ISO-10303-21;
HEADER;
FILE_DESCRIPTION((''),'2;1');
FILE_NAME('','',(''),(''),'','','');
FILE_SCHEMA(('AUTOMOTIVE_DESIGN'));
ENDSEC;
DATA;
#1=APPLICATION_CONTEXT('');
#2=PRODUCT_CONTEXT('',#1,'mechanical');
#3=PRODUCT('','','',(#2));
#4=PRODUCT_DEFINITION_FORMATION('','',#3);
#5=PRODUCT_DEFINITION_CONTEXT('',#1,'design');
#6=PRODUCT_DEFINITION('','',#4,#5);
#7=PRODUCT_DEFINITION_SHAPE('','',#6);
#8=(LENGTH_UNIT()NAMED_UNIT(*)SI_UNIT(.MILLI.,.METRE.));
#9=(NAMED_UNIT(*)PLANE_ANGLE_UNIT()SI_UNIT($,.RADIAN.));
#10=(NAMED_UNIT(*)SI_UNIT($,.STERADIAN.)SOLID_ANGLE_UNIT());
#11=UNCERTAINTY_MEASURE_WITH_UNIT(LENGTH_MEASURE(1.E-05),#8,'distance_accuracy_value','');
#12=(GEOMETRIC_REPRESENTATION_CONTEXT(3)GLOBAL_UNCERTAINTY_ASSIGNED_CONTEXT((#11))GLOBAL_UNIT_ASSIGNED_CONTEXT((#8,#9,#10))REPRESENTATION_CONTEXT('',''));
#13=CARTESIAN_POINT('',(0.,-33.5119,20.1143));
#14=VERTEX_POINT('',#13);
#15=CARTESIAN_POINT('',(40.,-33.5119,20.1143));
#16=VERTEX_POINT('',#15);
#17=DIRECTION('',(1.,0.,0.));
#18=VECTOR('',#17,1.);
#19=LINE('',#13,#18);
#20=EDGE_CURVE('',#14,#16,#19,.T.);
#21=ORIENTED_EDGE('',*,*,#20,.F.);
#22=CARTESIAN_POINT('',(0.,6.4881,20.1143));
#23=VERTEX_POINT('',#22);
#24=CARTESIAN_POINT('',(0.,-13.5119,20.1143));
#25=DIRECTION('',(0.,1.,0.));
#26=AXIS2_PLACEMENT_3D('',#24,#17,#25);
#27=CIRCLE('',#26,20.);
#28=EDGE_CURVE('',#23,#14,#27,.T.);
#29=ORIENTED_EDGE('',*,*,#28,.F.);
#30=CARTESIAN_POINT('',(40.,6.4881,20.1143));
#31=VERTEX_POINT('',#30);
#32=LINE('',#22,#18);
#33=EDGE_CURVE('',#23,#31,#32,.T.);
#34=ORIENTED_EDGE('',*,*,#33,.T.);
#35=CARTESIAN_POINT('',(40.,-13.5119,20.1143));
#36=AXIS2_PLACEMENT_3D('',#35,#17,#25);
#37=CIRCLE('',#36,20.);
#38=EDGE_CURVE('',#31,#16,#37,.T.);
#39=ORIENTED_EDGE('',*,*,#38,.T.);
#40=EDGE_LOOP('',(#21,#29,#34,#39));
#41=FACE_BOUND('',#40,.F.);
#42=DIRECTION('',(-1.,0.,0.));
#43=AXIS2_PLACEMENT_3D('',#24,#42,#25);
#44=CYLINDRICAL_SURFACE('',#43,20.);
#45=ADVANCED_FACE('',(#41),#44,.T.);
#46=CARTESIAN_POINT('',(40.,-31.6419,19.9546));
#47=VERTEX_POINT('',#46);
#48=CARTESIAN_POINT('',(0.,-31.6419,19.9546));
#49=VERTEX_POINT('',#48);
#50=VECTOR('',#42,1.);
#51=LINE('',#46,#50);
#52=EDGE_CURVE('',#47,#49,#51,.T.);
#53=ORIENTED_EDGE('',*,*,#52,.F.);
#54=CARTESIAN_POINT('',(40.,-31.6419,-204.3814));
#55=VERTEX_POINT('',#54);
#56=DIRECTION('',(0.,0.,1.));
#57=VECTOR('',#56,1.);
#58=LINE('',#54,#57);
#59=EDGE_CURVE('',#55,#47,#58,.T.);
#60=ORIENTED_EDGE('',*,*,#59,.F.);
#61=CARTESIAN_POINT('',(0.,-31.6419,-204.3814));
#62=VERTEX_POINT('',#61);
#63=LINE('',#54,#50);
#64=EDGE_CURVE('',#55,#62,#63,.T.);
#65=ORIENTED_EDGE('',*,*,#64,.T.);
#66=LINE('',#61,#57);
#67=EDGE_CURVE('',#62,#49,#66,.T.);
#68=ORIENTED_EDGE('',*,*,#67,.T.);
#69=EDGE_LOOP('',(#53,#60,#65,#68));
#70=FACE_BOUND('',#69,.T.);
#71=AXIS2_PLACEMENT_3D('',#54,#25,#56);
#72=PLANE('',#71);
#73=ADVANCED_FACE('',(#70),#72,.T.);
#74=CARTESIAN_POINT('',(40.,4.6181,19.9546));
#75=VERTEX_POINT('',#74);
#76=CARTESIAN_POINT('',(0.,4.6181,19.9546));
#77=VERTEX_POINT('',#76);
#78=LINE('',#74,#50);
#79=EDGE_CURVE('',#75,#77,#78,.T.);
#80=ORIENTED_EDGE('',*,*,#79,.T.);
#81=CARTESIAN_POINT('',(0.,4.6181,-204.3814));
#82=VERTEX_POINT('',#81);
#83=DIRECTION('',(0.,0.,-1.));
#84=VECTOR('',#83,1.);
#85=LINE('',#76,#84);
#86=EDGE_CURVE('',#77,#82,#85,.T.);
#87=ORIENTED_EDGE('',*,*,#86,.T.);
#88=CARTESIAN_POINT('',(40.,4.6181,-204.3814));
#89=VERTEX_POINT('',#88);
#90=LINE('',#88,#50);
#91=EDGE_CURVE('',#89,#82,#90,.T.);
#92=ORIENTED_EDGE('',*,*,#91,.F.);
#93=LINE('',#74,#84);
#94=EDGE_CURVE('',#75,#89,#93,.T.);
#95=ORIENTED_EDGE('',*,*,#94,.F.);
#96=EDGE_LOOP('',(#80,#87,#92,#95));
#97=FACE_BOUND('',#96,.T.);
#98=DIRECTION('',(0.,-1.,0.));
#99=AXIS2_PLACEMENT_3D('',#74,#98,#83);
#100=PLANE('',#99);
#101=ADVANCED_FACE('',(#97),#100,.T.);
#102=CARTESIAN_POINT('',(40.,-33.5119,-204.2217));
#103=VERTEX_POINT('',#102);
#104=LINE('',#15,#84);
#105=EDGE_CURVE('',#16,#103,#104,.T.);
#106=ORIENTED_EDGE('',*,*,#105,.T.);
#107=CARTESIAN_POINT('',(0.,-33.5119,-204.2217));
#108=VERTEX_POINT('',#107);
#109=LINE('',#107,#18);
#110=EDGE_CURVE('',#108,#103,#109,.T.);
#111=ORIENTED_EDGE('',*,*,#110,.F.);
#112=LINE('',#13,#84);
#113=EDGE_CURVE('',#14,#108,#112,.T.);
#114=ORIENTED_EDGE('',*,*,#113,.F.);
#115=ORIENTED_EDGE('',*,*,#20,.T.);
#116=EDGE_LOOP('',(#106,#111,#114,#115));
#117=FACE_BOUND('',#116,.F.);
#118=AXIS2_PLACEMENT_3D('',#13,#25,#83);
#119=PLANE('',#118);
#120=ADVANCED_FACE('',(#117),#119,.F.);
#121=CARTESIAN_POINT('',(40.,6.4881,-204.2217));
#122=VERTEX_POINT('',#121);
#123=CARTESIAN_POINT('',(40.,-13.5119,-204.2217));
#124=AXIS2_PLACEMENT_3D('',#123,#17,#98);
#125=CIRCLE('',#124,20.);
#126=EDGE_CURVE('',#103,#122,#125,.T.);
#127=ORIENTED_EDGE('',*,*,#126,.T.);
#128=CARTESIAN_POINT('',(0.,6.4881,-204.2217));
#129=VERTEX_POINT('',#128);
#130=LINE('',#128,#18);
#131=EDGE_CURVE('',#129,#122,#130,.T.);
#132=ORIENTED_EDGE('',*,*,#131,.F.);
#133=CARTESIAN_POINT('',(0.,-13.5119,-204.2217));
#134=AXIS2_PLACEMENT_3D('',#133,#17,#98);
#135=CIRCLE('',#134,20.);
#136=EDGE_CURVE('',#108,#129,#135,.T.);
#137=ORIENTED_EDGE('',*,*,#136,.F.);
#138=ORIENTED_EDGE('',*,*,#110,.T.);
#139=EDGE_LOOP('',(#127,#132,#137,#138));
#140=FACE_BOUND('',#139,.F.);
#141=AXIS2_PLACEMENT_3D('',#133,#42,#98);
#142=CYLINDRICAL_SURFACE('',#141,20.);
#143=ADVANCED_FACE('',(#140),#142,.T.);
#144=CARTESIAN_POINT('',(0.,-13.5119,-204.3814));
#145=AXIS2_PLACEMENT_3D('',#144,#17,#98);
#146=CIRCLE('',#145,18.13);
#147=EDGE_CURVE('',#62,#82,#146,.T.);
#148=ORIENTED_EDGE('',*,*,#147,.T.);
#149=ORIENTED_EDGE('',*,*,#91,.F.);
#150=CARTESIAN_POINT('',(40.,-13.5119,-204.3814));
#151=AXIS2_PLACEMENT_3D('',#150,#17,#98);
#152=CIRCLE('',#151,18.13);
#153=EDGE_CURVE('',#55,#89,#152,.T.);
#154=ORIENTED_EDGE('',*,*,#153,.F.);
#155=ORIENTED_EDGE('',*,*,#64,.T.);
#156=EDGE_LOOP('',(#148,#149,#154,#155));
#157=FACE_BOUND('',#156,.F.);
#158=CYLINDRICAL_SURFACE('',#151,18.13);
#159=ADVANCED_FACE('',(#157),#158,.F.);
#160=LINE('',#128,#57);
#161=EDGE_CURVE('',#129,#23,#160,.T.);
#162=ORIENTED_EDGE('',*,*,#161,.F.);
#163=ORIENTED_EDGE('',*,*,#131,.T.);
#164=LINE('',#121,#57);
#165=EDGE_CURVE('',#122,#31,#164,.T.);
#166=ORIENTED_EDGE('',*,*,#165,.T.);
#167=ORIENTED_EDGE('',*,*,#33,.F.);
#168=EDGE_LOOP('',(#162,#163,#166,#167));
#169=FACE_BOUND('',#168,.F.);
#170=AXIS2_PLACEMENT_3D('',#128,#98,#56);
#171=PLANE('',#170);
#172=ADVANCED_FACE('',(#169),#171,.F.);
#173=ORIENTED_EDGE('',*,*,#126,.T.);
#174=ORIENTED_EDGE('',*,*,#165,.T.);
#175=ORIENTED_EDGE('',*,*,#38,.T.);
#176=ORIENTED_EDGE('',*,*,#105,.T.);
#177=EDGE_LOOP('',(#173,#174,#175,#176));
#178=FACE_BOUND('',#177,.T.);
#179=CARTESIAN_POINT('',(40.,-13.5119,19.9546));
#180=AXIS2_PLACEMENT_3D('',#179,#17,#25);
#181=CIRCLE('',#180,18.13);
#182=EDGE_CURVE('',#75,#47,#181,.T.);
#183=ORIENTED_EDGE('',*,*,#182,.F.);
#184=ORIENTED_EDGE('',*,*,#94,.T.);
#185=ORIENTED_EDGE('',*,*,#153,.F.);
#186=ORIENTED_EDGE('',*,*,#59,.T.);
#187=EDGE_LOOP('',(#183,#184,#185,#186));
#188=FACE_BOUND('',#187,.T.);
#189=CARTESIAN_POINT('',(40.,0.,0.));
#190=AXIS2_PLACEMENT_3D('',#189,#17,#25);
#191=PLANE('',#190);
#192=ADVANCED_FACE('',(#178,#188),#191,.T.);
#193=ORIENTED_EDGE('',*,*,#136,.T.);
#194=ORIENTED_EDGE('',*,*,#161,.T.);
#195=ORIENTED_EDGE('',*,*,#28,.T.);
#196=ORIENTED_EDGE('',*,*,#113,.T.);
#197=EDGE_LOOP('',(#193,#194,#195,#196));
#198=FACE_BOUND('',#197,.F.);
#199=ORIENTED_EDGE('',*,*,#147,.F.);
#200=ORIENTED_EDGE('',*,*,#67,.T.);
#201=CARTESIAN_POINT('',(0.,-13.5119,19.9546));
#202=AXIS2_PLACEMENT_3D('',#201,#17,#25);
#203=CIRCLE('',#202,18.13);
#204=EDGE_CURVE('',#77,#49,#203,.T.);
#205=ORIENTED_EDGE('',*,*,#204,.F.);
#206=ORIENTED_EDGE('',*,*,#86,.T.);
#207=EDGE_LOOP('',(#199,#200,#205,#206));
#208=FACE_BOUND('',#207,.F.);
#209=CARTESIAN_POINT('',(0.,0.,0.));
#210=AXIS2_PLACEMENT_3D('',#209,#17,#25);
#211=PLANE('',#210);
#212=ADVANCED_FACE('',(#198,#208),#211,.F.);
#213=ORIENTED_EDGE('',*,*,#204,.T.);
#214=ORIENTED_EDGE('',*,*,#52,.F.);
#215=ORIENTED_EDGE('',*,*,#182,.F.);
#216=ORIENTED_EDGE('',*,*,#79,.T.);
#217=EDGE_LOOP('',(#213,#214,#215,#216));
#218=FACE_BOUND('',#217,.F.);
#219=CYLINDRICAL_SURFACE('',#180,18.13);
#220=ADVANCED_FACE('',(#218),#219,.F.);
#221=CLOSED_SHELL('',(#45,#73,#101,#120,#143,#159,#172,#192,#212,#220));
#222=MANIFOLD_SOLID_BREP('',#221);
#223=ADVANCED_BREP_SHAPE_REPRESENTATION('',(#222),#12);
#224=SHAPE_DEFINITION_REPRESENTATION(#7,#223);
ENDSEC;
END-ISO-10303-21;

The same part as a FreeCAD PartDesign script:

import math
import FreeCAD as App
import Part
import Sketcher
from FreeCAD import Vector

doc = App.newDocument("Part")
body = doc.addObject("PartDesign::Body", "Body")

sketch1 = body.newObject("Sketcher::SketchObject", "Sketch")
sketch1.AttachmentSupport = (doc.getObject("YZ_Plane"), [""])
sketch1.MapMode = "FlatFace"
sketch1.addGeometry([
    Part.ArcOfCircle(Part.Circle(Vector(-14, 20, 0), Vector(0, 0, 1), 20), math.radians(0), math.radians(180)),
    Part.LineSegment(Vector(-34, 20, 0), Vector(-34, -204, 0)),
    Part.ArcOfCircle(Part.Circle(Vector(-14, -204, 0), Vector(0, 0, 1), 20), math.radians(180), math.radians(360)),
    Part.LineSegment(Vector(6, -204, 0), Vector(6, 20, 0)),
], False)
sketch1.addConstraint([
    Sketcher.Constraint("Tangent", 0, 2, 1, 1),
    Sketcher.Constraint("Tangent", 1, 2, 2, 1),
    Sketcher.Constraint("Tangent", 2, 2, 3, 1),
    Sketcher.Constraint("Tangent", 3, 2, 0, 1),
    Sketcher.Constraint("Vertical", 1),
    Sketcher.Constraint("Vertical", 3),
    Sketcher.Constraint("Radius", 0, 20.0),
    Sketcher.Constraint("DistanceY", 1, 2, 1, 1, 224.336),
    Sketcher.Constraint("DistanceX", 0, 3, -1, 1, 13.512),
    Sketcher.Constraint("DistanceY", -1, 1, 0, 3, 20.1143),
])
pad1 = body.newObject("PartDesign::Pad", "Pad")
pad1.Profile = sketch1
pad1.Length = 40

sketch2 = body.newObject("Sketcher::SketchObject", "Sketch001")
sketch2.AttachmentSupport = (doc.getObject("YZ_Plane"), [""])
sketch2.MapMode = "FlatFace"
sketch2.AttachmentOffset = App.Placement(Vector(0, 0, 40), App.Rotation())
sketch2.addGeometry([
    Part.LineSegment(Vector(5, -204, 0), Vector(5, 20, 0)),
    Part.ArcOfCircle(Part.Circle(Vector(-14, 20, 0), Vector(0, 0, 1), 18), math.radians(0), math.radians(180)),
    Part.LineSegment(Vector(-32, 20, 0), Vector(-32, -204, 0)),
    Part.ArcOfCircle(Part.Circle(Vector(-14, -204, 0), Vector(0, 0, 1), 18), math.radians(180), math.radians(360)),
], False)
sketch2.addConstraint([
    Sketcher.Constraint("Tangent", 0, 2, 1, 1),
    Sketcher.Constraint("Tangent", 1, 2, 2, 1),
    Sketcher.Constraint("Tangent", 2, 2, 3, 1),
    Sketcher.Constraint("Tangent", 3, 2, 0, 1),
    Sketcher.Constraint("Vertical", 0),
    Sketcher.Constraint("Vertical", 2),
    Sketcher.Constraint("Radius", 1, 18.13),
    Sketcher.Constraint("DistanceY", 0, 1, 0, 2, 224.336),
    Sketcher.Constraint("DistanceX", 1, 3, -1, 1, 13.512),
    Sketcher.Constraint("DistanceY", -1, 1, 1, 3, 19.9546),
])
pocket1 = body.newObject("PartDesign::Pocket", "Pocket")
pocket1.Profile = sketch2
pocket1.Length = 40

doc.recompute()
